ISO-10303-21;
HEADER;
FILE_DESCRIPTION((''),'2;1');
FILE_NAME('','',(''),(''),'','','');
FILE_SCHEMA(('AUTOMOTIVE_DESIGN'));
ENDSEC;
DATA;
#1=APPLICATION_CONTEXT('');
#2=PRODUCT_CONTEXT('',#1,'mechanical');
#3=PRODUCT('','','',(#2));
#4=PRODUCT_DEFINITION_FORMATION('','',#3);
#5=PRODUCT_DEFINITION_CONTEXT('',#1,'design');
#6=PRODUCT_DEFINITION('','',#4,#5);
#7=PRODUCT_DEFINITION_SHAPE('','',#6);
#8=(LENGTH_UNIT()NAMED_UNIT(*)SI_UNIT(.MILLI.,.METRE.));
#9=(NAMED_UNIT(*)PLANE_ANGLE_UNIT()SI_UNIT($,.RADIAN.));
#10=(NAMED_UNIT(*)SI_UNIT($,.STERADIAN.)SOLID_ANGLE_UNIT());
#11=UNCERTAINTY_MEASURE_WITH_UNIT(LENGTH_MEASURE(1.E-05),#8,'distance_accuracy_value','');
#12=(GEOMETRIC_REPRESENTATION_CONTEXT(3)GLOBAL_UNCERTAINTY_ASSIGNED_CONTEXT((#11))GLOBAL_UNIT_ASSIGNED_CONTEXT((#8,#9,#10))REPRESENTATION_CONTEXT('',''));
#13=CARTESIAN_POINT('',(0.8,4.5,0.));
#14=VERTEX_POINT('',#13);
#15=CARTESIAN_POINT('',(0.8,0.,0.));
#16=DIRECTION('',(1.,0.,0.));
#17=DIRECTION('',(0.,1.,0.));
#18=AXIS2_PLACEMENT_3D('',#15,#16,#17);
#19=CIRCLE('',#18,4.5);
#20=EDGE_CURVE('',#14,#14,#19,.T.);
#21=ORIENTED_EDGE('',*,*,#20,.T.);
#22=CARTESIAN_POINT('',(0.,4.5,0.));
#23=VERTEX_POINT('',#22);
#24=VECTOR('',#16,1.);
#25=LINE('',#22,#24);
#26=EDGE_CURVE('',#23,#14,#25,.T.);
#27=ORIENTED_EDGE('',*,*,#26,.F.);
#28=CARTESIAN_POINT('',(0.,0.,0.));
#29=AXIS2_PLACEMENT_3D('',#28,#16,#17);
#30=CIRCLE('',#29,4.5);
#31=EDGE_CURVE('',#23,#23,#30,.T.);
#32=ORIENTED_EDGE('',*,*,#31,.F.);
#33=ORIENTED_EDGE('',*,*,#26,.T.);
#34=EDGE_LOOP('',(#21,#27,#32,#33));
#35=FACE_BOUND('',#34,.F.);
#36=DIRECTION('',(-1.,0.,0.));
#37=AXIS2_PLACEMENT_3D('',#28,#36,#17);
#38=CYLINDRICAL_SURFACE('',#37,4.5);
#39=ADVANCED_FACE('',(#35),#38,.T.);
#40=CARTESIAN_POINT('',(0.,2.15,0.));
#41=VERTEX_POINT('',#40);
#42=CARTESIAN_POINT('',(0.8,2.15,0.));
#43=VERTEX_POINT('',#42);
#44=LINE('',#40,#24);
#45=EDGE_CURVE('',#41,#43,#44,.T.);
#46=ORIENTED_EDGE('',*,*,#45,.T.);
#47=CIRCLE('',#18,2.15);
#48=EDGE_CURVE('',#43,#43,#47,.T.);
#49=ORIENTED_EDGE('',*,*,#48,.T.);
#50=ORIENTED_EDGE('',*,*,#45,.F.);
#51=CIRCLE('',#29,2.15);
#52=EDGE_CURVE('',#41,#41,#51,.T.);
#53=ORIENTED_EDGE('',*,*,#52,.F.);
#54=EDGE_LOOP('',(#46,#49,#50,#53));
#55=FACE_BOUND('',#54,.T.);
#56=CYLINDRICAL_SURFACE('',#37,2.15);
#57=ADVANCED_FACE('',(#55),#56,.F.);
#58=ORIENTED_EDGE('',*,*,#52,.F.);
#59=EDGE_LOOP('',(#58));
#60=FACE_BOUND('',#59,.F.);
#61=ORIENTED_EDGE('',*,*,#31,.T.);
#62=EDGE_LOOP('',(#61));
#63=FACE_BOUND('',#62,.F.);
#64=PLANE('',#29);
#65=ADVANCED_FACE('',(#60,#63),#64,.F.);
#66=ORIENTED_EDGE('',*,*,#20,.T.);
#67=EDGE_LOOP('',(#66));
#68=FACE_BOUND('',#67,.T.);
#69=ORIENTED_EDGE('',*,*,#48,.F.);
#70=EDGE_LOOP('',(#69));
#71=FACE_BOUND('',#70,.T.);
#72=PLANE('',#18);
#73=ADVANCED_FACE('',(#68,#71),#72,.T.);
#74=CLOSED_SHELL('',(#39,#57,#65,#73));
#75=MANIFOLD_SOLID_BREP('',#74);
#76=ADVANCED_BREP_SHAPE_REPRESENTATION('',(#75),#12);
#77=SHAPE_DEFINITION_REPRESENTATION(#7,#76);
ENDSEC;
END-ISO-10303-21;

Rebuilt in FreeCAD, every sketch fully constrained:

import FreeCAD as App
import Part
import Sketcher

V = App.Vector

doc = App.newDocument("Part")
body = doc.addObject("PartDesign::Body", "Body")

sketch1 = doc.addObject("Sketcher::SketchObject", "Sketch")
body.addObject(sketch1)
sketch1.AttachmentSupport = (doc.YZ_Plane, [""])
sketch1.MapMode = "FlatFace"
sketch1.addGeometry(Part.Circle(V(0, 0, 0), V(0, 0, 1), 4.5), False)
sketch1.addGeometry(Part.Circle(V(0, 0, 0), V(0, 0, 1), 2.1), False)
sketch1.addConstraint(Sketcher.Constraint("Coincident", 0, 3, -1, 1))
sketch1.addConstraint(Sketcher.Constraint("Coincident", 1, 3, -1, 1))
sketch1.addConstraint(Sketcher.Constraint("Diameter", 0, 9.0))
sketch1.addConstraint(Sketcher.Constraint("Diameter", 1, 4.3))
pad1 = doc.addObject("PartDesign::Pad", "Pad")
body.addObject(pad1)
pad1.Profile = sketch1
pad1.Length = 0.8

doc.recompute()
